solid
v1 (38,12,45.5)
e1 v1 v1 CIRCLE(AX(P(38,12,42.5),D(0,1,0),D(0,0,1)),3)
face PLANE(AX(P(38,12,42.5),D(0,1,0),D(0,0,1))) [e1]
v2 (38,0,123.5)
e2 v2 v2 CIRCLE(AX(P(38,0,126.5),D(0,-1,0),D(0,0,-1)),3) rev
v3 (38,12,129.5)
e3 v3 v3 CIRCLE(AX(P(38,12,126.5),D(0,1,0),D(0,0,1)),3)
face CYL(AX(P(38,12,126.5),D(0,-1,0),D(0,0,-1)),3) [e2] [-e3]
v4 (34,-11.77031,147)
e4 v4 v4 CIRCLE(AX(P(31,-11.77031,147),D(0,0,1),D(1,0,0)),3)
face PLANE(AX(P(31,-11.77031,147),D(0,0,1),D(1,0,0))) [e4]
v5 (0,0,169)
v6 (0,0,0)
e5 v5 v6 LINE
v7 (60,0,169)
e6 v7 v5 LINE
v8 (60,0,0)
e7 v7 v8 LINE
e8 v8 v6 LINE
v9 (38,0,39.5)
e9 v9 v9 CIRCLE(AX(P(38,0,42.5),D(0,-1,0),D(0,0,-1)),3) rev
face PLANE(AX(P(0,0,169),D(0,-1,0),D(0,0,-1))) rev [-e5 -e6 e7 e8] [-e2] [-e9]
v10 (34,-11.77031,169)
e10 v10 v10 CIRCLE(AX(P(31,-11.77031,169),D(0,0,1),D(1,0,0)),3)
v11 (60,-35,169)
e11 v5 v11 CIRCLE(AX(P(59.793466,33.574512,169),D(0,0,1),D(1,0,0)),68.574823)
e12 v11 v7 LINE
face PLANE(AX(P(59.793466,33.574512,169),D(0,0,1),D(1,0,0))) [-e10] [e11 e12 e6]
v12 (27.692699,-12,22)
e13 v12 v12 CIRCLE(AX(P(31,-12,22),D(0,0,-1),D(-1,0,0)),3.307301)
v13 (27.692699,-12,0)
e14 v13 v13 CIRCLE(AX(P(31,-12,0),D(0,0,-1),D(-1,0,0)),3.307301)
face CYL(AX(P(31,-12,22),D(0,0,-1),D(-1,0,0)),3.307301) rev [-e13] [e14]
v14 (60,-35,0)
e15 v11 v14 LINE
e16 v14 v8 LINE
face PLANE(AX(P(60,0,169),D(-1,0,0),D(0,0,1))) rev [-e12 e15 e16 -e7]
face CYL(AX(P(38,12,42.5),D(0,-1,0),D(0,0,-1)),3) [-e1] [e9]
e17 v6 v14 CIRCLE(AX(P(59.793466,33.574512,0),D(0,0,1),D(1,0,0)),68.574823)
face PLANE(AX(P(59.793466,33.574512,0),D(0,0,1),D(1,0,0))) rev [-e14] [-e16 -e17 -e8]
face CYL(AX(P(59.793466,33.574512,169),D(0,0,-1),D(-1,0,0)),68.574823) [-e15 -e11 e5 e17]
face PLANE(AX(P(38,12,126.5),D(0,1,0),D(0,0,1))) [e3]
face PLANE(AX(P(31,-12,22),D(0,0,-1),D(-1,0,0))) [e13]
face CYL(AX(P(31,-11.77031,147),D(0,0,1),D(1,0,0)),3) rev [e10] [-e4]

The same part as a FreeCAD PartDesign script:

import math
import FreeCAD as App
import Part
import Sketcher
from FreeCAD import Vector
Q = App.Units.Quantity

doc = App.newDocument("Part")
body = doc.addObject("PartDesign::Body", "Body")

sketch1 = body.newObject("Sketcher::SketchObject", "Sketch")
sketch1.AttachmentSupport = (doc.getObject("XY_Plane"), [""])
sketch1.MapMode = "FlatFace"
sketch1.addGeometry([
    Part.LineSegment(Vector(60, 0, 0), Vector(0, 0, 0)),
    Part.ArcOfCircle(Part.Circle(Vector(60, 34, 0), Vector(0, 0, 1), 69), math.radians(-151), math.radians(-90)),
    Part.LineSegment(Vector(60, -35, 0), Vector(60, 0, 0)),
], False)
sketch1.addConstraint([
    Sketcher.Constraint("Coincident", 0, 2, 1, 1),
    Sketcher.Constraint("Coincident", 1, 2, 2, 1),
    Sketcher.Constraint("Coincident", 2, 2, 0, 1),
    Sketcher.Constraint("Horizontal", 0),
    Sketcher.Constraint("Vertical", 2),
    Sketcher.Constraint("Coincident", 0, 2, -1, 1),
    Sketcher.Constraint("DistanceX", 0, 2, 0, 1, Q("60 mm")),
    Sketcher.Constraint("DistanceY", 2, 1, 2, 2, Q("35 mm")),
    Sketcher.Constraint("Radius", 1, Q("68.574823 mm")),
])
pad1 = body.newObject("PartDesign::Pad", "Pad")
pad1.Profile = sketch1
pad1.Length = 169

sketch2 = body.newObject("Sketcher::SketchObject", "Sketch001")
sketch2.AttachmentSupport = (doc.getObject("XY_Plane"), [""])
sketch2.MapMode = "FlatFace"
sketch2.addGeometry(Part.Circle(Vector(31, -12, 0), Vector(0, 0, 1), 3.3), False)
sketch2.addConstraint([
    Sketcher.Constraint("DistanceX", -1, 1, 0, 3, Q("31 mm")),
    Sketcher.Constraint("DistanceY", 0, 3, -1, 1, Q("12 mm")),
    Sketcher.Constraint("Diameter", 0, Q("6.614601 mm")),
])
pocket1 = body.newObject("PartDesign::Pocket", "Pocket")
pocket1.Profile = sketch2
pocket1.Length = 22
pocket1.Reversed = True

sketch3 = body.newObject("Sketcher::SketchObject", "Sketch002")
sketch3.AttachmentSupport = (doc.getObject("XZ_Plane"), [""])
sketch3.MapMode = "FlatFace"
sketch3.addGeometry(Part.Circle(Vector(38, 42.5, 0), Vector(0, 0, 1), 3), False)
sketch3.addConstraint([
    Sketcher.Constraint("Diameter", 0, Q("6 mm")),
    Sketcher.Constraint("DistanceX", -1, 1, 0, 3, Q("38 mm")),
    Sketcher.Constraint("DistanceY", -1, 1, 0, 3, Q("42.5 mm")),
])
pad2 = body.newObject("PartDesign::Pad", "Pad001")
pad2.Profile = sketch3
pad2.Length = 12
pad2.Reversed = True

sketch4 = body.newObject("Sketcher::SketchObject", "Sketch003")
sketch4.AttachmentSupport = (doc.getObject("XZ_Plane"), [""])
sketch4.MapMode = "FlatFace"
sketch4.addGeometry(Part.Circle(Vector(38, 126.5, 0), Vector(0, 0, 1), 3), False)
sketch4.addConstraint([
    Sketcher.Constraint("Diameter", 0, Q("6 mm")),
    Sketcher.Constraint("DistanceX", -1, 1, 0, 3, Q("38 mm")),
    Sketcher.Constraint("DistanceY", -1, 1, 0, 3, Q("126.5 mm")),
])
pad3 = body.newObject("PartDesign::Pad", "Pad002")
pad3.Profile = sketch4
pad3.Length = 12
pad3.Reversed = True

sketch5 = body.newObject("Sketcher::SketchObject", "Sketch004")
sketch5.AttachmentSupport = (doc.getObject("XY_Plane"), [""])
sketch5.MapMode = "FlatFace"
sketch5.AttachmentOffset = App.Placement(Vector(0, 0, 169), App.Rotation())
sketch5.addGeometry(Part.Circle(Vector(31, -11.8, 0), Vector(0, 0, 1), 3), False)
sketch5.addConstraint([
    Sketcher.Constraint("Diameter", 0, Q("6 mm")),
    Sketcher.Constraint("DistanceX", -1, 1, 0, 3, Q("31 mm")),
    Sketcher.Constraint("DistanceY", 0, 3, -1, 1, Q("11.77031 mm")),
])
pocket2 = body.newObject("PartDesign::Pocket", "Pocket001")
pocket2.Profile = sketch5
pocket2.Length = 22

doc.recompute()
